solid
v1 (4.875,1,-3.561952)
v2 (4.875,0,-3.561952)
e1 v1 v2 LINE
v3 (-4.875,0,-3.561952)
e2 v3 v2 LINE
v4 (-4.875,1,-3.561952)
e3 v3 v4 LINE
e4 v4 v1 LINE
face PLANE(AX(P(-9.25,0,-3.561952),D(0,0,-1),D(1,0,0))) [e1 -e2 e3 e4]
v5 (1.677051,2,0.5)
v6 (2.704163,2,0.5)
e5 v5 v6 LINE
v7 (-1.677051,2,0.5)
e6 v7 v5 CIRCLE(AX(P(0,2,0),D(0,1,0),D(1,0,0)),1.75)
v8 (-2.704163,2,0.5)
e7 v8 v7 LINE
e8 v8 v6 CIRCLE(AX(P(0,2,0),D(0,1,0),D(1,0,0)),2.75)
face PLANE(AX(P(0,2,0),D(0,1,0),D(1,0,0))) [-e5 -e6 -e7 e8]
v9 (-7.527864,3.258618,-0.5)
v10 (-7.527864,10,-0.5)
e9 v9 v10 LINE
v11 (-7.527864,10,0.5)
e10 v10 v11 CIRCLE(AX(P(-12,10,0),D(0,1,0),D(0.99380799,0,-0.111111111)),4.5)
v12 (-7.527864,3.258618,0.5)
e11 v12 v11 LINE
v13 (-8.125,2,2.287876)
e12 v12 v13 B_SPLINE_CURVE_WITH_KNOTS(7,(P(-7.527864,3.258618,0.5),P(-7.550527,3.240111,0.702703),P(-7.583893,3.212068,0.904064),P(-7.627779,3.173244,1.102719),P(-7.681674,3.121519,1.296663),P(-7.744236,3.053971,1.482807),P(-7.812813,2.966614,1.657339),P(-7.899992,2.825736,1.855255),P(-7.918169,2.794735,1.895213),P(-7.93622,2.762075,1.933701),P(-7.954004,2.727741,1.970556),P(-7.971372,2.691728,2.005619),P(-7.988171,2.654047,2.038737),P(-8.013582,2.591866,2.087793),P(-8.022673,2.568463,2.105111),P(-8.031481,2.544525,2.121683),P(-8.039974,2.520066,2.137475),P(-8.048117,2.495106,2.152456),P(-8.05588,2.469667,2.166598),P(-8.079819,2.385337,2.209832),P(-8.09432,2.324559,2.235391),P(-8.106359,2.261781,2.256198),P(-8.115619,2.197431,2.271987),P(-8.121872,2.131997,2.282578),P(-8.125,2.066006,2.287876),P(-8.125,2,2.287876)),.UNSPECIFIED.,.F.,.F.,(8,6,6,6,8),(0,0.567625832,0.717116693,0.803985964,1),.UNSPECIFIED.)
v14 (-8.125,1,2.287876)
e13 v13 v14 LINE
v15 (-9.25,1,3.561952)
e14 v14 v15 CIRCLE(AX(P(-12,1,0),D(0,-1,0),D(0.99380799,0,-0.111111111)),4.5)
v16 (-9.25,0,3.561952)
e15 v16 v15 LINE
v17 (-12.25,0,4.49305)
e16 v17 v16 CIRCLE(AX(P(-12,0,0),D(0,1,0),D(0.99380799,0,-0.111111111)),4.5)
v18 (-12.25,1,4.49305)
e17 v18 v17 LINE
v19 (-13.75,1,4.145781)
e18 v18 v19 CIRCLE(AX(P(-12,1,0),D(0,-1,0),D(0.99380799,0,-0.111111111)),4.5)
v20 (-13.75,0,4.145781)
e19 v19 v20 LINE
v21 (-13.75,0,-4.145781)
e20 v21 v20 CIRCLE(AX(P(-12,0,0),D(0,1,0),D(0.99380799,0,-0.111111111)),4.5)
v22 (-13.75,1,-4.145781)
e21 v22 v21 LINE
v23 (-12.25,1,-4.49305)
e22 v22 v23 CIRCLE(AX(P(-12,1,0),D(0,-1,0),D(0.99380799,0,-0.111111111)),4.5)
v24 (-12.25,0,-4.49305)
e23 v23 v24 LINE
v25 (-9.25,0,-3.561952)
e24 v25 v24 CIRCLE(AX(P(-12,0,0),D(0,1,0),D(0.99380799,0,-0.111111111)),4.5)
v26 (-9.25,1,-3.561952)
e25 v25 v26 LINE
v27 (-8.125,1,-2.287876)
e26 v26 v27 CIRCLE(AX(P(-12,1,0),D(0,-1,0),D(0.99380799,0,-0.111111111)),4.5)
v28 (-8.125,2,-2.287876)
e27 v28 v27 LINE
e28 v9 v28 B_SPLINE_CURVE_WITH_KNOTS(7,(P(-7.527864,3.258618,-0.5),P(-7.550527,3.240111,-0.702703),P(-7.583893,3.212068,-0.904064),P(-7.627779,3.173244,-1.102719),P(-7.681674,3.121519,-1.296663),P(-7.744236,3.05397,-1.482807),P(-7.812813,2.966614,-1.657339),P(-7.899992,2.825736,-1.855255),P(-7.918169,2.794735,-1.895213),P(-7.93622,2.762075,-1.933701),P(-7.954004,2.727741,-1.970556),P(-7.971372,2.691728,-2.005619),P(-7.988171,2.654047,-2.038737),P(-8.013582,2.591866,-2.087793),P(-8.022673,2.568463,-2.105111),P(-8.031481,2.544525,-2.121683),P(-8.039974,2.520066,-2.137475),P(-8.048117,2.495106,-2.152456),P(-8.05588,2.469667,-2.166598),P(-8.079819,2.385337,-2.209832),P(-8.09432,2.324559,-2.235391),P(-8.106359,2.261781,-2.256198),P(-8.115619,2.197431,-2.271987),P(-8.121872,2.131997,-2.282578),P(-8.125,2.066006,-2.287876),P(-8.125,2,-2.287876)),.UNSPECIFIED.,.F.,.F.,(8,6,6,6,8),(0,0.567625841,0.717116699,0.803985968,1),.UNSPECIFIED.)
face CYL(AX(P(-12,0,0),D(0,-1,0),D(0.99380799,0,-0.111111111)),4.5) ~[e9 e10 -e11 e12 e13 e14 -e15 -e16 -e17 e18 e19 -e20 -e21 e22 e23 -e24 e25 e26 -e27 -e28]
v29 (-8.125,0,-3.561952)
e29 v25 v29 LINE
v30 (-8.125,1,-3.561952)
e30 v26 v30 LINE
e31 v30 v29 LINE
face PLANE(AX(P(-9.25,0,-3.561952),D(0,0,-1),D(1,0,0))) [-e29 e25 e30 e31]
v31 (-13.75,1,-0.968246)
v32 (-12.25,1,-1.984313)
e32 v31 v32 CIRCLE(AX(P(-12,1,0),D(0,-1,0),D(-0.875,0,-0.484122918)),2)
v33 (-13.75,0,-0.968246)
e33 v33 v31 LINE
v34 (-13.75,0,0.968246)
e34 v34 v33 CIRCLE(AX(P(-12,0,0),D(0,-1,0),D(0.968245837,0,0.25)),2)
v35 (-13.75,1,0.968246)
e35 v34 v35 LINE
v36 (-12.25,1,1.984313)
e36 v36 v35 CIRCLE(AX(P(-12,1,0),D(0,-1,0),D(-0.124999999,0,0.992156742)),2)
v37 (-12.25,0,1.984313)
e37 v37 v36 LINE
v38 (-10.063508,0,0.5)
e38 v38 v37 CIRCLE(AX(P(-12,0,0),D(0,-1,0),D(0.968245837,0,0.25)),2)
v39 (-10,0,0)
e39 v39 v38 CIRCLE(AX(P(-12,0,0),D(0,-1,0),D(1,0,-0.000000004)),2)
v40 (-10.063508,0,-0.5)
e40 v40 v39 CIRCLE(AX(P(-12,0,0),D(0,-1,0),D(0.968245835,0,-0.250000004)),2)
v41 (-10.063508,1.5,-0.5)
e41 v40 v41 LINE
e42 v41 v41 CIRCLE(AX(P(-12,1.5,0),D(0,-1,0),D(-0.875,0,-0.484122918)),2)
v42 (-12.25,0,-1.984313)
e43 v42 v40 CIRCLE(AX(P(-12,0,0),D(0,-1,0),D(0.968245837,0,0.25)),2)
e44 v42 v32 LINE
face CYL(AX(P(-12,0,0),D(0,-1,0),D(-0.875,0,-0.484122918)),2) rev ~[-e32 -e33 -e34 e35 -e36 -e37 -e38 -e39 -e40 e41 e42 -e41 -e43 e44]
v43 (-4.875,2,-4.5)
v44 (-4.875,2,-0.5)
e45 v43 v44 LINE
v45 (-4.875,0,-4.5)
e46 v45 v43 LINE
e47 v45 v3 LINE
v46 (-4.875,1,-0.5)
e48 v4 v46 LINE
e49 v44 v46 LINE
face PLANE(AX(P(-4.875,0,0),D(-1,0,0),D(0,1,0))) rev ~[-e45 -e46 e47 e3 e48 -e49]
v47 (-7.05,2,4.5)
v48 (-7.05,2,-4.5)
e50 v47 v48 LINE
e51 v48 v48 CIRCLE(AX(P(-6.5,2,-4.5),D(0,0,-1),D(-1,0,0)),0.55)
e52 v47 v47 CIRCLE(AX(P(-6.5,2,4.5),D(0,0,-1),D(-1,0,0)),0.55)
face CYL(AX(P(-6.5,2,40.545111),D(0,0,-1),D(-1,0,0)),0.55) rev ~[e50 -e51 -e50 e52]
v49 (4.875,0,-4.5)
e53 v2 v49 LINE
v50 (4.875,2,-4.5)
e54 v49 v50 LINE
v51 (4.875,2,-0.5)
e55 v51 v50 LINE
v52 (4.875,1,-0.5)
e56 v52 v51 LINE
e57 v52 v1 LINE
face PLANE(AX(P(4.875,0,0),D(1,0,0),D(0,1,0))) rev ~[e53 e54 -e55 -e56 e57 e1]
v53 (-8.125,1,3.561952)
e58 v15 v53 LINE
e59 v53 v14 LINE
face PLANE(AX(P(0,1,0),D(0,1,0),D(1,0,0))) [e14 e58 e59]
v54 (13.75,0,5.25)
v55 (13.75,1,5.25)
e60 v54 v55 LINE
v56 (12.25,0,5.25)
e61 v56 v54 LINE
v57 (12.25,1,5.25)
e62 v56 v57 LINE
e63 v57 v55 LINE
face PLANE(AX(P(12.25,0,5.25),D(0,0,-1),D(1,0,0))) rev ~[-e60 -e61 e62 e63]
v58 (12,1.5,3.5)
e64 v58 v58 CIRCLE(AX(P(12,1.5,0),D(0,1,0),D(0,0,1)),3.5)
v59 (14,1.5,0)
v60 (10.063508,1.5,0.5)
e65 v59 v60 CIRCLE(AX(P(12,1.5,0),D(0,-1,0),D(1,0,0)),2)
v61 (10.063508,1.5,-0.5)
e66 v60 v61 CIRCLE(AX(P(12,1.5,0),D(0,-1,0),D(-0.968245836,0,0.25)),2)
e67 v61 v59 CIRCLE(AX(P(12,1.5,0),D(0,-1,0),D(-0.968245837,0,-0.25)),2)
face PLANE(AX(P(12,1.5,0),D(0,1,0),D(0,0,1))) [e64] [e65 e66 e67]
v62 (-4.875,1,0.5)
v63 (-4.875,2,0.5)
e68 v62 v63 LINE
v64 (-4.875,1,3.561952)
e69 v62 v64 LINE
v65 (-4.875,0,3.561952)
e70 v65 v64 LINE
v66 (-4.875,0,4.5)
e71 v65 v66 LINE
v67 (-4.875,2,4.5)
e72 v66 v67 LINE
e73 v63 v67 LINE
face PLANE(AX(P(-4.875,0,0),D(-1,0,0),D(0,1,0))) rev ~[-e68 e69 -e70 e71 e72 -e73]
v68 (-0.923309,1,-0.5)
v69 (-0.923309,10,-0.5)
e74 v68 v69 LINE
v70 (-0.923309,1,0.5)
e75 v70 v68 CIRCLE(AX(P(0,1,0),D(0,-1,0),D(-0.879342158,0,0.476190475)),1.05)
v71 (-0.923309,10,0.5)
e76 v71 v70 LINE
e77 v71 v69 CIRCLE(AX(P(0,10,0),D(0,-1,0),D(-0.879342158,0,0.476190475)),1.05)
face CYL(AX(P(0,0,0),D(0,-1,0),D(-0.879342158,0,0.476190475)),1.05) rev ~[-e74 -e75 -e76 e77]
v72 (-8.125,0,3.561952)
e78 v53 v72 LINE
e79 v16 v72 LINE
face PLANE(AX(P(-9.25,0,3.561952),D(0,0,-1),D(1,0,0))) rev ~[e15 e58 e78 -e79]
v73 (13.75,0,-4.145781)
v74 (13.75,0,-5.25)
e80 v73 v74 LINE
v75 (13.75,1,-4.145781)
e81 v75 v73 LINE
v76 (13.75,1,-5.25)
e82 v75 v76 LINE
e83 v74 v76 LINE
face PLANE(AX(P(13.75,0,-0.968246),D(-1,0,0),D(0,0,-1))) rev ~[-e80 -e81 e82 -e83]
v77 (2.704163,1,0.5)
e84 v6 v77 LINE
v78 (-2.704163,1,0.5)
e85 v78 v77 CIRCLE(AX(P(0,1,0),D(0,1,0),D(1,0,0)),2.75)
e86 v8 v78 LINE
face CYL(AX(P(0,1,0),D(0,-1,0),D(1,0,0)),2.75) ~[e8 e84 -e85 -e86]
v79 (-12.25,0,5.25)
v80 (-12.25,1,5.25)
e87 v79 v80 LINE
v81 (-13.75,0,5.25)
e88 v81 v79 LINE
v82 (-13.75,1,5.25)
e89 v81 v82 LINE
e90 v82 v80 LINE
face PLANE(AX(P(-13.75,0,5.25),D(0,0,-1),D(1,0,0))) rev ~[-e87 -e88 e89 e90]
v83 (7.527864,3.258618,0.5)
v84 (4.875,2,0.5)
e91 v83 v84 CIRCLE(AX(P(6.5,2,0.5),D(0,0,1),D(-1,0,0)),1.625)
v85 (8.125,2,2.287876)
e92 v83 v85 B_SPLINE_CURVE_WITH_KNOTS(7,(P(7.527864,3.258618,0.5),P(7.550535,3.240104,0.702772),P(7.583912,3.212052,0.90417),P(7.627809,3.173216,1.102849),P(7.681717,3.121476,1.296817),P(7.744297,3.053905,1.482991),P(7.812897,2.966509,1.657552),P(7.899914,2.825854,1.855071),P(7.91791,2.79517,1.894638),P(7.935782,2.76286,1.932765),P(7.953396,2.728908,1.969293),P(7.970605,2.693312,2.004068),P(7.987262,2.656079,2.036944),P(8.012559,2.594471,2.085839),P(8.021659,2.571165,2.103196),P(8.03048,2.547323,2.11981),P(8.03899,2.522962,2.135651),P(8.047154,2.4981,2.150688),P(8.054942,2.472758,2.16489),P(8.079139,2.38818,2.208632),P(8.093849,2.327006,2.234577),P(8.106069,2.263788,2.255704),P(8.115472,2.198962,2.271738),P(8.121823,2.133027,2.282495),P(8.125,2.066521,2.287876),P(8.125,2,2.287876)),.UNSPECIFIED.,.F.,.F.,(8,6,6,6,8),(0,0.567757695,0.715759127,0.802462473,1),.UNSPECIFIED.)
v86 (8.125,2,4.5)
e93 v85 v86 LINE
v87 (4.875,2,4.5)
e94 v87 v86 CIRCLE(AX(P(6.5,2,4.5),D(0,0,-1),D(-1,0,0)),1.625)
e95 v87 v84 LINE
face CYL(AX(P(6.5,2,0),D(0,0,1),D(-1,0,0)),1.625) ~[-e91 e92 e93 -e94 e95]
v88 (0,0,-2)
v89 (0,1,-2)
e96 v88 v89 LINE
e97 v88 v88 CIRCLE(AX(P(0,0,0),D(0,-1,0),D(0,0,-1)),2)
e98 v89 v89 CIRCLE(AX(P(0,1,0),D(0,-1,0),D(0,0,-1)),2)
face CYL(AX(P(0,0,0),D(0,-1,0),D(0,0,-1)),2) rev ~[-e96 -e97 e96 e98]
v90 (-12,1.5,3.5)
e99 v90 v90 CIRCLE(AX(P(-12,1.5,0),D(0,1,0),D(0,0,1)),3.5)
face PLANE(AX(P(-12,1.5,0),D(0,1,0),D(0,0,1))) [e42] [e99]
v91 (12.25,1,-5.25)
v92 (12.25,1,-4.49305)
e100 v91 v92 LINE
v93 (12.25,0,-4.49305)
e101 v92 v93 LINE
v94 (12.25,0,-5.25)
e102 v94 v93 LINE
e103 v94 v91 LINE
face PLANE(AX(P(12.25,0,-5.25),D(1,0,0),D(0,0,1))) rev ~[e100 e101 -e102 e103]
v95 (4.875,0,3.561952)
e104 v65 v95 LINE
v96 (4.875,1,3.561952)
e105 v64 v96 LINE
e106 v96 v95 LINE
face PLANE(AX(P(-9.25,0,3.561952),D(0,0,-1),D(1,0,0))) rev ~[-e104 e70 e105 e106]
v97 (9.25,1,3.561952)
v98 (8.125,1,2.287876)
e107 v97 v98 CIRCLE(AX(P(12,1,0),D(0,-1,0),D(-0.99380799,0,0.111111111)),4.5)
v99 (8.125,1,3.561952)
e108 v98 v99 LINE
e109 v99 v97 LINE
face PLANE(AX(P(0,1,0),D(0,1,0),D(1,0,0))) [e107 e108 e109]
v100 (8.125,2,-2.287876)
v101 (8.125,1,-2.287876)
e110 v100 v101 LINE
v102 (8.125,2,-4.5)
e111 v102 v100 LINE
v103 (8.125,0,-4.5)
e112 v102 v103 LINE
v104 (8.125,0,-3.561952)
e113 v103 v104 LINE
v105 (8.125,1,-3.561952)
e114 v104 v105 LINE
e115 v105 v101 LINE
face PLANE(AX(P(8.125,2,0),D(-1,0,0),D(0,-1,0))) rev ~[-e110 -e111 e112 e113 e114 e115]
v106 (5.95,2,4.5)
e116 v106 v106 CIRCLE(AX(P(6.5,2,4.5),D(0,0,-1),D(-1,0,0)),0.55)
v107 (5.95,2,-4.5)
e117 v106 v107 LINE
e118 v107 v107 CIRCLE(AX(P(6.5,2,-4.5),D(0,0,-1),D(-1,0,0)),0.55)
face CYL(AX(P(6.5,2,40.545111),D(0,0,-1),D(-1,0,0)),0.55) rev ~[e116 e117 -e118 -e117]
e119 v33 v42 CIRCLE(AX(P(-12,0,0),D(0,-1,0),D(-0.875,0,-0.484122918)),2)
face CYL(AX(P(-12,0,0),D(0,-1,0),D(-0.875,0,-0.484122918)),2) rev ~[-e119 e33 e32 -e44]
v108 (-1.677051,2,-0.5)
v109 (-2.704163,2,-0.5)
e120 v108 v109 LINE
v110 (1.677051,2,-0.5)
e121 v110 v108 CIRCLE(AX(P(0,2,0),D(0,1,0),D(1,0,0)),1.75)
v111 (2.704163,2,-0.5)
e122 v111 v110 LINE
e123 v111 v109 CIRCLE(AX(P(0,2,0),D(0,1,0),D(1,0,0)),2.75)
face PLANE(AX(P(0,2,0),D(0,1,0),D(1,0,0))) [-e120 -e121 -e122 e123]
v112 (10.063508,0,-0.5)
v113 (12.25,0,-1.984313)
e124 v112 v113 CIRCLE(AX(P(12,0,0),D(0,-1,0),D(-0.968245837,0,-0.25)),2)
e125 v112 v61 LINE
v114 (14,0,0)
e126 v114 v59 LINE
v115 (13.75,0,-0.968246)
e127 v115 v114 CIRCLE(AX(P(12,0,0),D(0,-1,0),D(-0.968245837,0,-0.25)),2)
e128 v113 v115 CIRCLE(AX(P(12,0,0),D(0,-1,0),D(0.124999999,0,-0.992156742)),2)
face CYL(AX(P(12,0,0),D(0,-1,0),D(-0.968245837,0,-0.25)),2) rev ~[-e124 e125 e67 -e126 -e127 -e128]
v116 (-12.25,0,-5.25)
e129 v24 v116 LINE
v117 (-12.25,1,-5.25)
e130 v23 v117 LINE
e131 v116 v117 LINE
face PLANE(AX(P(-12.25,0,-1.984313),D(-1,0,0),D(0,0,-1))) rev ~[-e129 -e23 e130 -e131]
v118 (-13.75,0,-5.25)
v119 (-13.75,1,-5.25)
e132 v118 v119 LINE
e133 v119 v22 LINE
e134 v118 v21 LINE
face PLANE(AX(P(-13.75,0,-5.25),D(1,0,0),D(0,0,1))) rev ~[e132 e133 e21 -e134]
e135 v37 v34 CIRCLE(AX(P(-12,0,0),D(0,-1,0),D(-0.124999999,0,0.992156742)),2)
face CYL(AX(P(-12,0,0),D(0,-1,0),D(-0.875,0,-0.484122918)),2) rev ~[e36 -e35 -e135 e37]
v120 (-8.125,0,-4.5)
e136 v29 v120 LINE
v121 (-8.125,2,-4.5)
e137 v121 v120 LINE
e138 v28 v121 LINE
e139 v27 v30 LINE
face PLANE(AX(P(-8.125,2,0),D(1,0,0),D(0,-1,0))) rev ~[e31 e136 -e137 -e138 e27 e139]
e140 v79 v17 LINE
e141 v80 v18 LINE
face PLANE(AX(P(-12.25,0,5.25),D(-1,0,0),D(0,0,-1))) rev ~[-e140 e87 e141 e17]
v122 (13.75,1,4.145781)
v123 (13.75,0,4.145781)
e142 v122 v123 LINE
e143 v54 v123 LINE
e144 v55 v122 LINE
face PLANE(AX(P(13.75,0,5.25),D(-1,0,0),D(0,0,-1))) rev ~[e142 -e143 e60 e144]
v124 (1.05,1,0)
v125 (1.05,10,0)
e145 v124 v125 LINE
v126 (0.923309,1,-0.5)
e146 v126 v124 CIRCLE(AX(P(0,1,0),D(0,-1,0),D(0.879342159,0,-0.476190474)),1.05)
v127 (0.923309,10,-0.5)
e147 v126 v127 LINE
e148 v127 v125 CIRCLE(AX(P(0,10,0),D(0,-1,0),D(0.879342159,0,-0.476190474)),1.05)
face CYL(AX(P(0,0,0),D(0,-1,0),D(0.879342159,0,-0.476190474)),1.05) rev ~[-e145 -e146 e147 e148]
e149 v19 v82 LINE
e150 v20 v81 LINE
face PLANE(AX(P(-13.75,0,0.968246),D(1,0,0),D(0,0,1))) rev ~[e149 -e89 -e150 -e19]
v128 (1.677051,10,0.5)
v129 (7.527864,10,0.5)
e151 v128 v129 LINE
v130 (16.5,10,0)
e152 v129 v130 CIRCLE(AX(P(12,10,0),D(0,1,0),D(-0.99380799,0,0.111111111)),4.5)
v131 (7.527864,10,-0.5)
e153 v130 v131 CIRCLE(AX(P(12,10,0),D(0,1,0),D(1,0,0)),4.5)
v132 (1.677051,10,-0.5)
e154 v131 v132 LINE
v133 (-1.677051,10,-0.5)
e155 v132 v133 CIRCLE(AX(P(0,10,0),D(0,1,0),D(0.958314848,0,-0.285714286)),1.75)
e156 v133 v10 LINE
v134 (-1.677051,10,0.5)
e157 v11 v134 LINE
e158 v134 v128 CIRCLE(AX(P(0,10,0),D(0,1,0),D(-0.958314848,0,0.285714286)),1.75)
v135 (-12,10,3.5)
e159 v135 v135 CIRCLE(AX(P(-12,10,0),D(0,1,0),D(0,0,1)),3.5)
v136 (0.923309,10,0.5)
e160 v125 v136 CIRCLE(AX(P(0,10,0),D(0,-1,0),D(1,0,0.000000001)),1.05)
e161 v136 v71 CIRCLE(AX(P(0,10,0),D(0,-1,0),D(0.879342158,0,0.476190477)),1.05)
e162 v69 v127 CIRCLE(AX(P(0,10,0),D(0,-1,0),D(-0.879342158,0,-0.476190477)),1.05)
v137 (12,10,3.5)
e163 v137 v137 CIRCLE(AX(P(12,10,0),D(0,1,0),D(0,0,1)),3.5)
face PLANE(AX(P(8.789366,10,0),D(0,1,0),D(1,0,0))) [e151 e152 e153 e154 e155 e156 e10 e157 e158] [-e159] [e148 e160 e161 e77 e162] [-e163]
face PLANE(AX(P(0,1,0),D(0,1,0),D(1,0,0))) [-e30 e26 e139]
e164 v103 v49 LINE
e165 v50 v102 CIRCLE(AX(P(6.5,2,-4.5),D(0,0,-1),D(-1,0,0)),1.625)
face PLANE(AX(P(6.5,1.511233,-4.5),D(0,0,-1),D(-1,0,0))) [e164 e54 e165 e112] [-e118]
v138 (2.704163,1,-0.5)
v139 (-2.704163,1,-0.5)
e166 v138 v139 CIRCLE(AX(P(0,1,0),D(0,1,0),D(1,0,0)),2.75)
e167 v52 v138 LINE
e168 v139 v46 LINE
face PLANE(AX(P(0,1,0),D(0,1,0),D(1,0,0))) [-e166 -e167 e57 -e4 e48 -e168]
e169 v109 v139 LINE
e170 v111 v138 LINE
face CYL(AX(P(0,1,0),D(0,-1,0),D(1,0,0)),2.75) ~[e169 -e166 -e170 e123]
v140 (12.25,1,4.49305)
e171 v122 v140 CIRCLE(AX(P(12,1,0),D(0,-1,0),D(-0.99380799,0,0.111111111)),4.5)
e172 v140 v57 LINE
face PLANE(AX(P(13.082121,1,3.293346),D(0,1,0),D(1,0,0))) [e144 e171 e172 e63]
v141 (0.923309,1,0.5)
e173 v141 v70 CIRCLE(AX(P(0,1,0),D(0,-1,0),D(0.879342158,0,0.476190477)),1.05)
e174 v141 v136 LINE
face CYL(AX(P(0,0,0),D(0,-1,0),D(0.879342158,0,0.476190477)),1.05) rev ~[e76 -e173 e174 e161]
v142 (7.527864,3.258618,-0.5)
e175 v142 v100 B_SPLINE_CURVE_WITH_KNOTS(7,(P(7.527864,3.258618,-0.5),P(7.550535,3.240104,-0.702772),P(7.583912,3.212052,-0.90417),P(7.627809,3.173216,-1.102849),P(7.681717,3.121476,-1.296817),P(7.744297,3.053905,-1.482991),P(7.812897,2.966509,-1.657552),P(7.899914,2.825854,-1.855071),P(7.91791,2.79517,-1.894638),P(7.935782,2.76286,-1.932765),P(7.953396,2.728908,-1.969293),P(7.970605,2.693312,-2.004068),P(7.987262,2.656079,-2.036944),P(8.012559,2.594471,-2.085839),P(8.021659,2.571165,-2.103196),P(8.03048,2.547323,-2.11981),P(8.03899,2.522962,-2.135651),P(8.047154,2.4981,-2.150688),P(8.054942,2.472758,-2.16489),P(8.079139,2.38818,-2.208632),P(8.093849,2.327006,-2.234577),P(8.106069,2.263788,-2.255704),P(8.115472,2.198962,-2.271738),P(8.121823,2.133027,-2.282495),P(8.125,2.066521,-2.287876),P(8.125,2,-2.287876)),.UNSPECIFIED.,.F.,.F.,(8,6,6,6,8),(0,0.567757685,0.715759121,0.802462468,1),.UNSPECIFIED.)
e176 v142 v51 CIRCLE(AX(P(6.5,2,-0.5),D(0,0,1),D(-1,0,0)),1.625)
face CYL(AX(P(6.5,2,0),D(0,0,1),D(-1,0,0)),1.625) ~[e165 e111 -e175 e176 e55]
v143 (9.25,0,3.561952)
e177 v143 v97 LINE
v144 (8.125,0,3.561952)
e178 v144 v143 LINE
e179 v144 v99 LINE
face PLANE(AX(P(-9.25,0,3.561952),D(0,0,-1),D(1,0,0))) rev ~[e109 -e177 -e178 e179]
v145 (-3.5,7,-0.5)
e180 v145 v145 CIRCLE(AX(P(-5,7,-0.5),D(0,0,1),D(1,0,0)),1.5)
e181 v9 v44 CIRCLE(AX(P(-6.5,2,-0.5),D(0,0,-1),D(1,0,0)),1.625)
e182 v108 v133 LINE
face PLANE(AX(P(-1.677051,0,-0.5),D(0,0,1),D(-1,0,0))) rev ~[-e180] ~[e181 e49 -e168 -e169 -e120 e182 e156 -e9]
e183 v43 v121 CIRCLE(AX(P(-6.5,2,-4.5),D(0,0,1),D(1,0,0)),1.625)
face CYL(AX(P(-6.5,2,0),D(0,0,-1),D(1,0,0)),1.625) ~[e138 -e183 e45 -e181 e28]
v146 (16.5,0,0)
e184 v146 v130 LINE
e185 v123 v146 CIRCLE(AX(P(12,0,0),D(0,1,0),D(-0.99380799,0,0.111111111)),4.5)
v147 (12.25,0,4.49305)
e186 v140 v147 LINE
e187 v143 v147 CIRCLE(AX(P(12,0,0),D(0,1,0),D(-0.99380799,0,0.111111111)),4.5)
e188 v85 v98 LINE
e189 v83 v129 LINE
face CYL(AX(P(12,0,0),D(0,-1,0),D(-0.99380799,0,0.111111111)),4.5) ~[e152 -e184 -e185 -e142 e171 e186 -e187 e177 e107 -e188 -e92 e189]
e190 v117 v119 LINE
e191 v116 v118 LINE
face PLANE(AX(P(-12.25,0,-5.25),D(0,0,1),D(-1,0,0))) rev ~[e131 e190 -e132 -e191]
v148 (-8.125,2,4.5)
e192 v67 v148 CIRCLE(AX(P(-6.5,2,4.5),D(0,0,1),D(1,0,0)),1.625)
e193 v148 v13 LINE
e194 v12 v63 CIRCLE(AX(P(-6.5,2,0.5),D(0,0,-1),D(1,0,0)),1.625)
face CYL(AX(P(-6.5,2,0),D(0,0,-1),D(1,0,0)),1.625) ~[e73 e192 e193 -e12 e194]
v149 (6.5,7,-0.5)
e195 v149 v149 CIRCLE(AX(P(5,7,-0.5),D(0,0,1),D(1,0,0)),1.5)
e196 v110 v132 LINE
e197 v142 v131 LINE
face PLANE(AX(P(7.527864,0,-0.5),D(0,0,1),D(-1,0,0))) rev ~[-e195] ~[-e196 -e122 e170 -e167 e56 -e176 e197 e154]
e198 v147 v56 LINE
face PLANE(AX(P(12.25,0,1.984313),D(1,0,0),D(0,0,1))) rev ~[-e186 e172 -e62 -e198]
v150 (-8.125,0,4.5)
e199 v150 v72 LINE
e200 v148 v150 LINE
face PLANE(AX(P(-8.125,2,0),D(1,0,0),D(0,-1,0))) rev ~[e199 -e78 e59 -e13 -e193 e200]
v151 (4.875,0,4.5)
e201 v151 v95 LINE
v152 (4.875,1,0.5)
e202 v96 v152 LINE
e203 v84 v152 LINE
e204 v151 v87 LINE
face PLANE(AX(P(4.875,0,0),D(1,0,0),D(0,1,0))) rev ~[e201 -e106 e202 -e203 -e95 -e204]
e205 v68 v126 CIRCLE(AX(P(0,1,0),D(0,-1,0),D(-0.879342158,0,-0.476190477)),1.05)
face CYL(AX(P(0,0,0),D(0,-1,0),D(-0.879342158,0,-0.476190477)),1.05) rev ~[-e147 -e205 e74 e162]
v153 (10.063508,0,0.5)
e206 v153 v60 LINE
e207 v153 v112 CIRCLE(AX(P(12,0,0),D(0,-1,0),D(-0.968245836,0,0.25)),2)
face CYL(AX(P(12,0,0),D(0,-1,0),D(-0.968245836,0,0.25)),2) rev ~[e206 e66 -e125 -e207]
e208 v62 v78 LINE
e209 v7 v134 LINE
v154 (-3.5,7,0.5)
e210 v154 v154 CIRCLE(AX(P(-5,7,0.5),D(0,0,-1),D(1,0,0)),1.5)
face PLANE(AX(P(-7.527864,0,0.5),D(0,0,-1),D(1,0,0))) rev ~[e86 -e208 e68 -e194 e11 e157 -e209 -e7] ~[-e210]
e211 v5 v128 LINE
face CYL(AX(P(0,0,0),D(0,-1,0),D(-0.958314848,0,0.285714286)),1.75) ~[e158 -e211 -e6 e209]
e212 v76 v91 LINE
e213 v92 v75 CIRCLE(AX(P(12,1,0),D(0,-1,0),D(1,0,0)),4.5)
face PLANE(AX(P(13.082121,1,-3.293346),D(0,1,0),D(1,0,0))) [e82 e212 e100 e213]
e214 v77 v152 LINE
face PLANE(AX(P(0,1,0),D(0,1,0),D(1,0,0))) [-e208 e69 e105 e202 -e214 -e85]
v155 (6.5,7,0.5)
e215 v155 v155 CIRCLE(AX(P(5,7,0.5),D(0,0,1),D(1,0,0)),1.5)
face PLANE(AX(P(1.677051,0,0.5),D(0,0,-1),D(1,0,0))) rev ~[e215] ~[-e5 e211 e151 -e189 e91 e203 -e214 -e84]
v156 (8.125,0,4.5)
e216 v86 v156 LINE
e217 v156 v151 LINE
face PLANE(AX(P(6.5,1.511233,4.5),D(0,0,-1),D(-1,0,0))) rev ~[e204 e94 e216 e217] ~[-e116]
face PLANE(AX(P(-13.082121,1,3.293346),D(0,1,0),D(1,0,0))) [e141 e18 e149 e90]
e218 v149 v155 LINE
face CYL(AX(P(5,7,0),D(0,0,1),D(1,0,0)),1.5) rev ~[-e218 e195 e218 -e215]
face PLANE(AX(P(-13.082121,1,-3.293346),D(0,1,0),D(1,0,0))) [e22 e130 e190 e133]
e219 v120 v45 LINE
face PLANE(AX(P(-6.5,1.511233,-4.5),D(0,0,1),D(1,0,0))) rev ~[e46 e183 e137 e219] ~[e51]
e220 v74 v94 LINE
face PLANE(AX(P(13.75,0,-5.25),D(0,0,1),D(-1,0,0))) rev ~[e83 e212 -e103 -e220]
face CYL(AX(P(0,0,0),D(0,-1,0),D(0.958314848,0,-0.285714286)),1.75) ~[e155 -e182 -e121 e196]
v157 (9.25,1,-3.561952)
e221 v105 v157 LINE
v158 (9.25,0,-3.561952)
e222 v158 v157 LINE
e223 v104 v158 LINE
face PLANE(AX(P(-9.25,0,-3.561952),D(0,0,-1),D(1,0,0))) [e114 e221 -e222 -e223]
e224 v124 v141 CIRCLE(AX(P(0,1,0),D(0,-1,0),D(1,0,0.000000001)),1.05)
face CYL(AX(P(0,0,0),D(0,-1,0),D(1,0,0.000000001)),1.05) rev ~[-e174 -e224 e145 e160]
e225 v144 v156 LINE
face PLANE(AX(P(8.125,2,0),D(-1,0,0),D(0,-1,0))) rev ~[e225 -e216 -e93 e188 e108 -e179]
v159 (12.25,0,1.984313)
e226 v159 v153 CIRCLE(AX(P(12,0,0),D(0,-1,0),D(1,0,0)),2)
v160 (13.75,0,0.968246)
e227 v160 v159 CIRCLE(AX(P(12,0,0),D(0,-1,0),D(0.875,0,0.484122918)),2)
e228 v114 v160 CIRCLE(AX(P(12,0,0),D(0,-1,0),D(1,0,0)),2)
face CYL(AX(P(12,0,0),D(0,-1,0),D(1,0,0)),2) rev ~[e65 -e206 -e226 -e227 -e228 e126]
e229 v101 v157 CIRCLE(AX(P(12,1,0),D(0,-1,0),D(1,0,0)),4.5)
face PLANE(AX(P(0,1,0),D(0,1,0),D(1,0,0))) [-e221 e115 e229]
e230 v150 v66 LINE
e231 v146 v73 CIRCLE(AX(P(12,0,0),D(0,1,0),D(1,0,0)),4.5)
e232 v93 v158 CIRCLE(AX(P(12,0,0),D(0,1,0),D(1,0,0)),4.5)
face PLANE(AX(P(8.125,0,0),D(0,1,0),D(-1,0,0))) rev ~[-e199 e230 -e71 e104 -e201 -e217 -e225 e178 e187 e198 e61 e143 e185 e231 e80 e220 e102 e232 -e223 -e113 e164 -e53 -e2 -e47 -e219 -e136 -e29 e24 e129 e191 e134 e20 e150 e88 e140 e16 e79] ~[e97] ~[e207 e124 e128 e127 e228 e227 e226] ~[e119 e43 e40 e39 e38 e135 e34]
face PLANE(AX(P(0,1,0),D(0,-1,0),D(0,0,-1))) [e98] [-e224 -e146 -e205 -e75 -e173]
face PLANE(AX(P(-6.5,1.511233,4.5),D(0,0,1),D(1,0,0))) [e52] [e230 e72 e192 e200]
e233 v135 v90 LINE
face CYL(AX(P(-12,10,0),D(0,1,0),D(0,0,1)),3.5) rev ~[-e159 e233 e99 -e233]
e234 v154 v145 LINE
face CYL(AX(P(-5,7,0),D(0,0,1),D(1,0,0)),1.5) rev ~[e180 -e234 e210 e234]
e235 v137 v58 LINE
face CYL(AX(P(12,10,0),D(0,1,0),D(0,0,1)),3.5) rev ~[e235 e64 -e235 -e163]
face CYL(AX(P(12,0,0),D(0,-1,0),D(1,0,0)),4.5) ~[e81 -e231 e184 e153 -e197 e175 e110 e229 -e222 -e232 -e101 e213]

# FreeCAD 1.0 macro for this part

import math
import FreeCAD as App
import Part
import Sketcher
from FreeCAD import Vector
Q = App.Units.Quantity

doc = App.newDocument("Part")
body = doc.addObject("PartDesign::Body", "Body")

# Sketch on XZ plane
sketch1 = body.newObject("Sketcher::SketchObject", "Sketch")
sketch1.AttachmentSupport = (doc.getObject("XZ_Plane"), [""])
sketch1.MapMode = "FlatFace"
sketch1.addGeometry(Part.ArcOfCircle(Part.Circle(Vector(12, 0, 0), Vector(0, 0, 1), 4.5), math.radians(0), math.radians(174)), False)
sketch1.addGeometry(Part.ArcOfCircle(Part.Circle(Vector(12, 0, 0), Vector(0, 0, 1), 4.5), math.radians(-174), math.radians(0)), False)
sketch1.addGeometry(Part.LineSegment(Vector(7.5, -0.5, 0), Vector(1.7, -0.5, 0)), False)
sketch1.addGeometry(Part.ArcOfCircle(Part.Circle(Vector(0, 0, 0), Vector(0, 0, 1), 1.8), math.radians(-163), math.radians(-17)), False)
sketch1.addGeometry(Part.LineSegment(Vector(-1.7, -0.5, 0), Vector(-7.5, -0.5, 0)), False)
sketch1.addGeometry(Part.ArcOfCircle(Part.Circle(Vector(-12, 0, 0), Vector(0, 0, 1), 4.5), math.radians(6), math.radians(354)), False)
sketch1.addGeometry(Part.LineSegment(Vector(-7.5, 0.5, 0), Vector(-1.7, 0.5, 0)), False)
sketch1.addGeometry(Part.ArcOfCircle(Part.Circle(Vector(0, 0, 0), Vector(0, 0, 1), 1.8), math.radians(17), math.radians(163)), False)
sketch1.addGeometry(Part.LineSegment(Vector(1.7, 0.5, 0), Vector(7.5, 0.5, 0)), False)
sketch1.addGeometry(Part.ArcOfCircle(Part.Circle(Vector(0, 0, 0), Vector(0, 0, 1), 1.1), math.radians(152), math.radians(208)), False)
sketch1.addGeometry(Part.ArcOfCircle(Part.Circle(Vector(0, 0, 0), Vector(0, 0, 1), 1.1), math.radians(-152), math.radians(-28)), False)
sketch1.addGeometry(Part.ArcOfCircle(Part.Circle(Vector(0, 0, 0), Vector(0, 0, 1), 1.1), math.radians(-28), math.radians(0)), False)
sketch1.addGeometry(Part.ArcOfCircle(Part.Circle(Vector(0, 0, 0), Vector(0, 0, 1), 1.1), math.radians(0), math.radians(28)), False)
sketch1.addGeometry(Part.ArcOfCircle(Part.Circle(Vector(0, 0, 0), Vector(0, 0, 1), 1.1), math.radians(28), math.radians(152)), False)
sketch1.addGeometry(Part.ArcOfCircle(Part.Circle(Vector(12, 0, 0), Vector(0, 0, 1), 2), math.radians(166), math.radians(194)), False)
sketch1.addGeometry(Part.ArcOfCircle(Part.Circle(Vector(12, 0, 0), Vector(0, 0, 1), 2), math.radians(-166), math.radians(0)), False)
sketch1.addGeometry(Part.ArcOfCircle(Part.Circle(Vector(12, 0, 0), Vector(0, 0, 1), 2), math.radians(0), math.radians(166)), False)
sketch1.addGeometry(Part.ArcOfCircle(Part.Circle(Vector(-12, 0, 0), Vector(0, 0, 1), 2), math.radians(-14.48), math.radians(0)), False)
sketch1.addGeometry(Part.ArcOfCircle(Part.Circle(Vector(-12, 0, 0), Vector(0, 0, 1), 2), math.radians(0), math.radians(14.48)), False)
sketch1.addGeometry(Part.ArcOfCircle(Part.Circle(Vector(-12, 0, 0), Vector(0, 0, 1), 2), math.radians(14), math.radians(346)), False)
sketch1.addConstraint(Sketcher.Constraint("Tangent", 0, 1, 1, 2))
sketch1.addConstraint(Sketcher.Constraint("Coincident", 1, 1, 2, 1))
sketch1.addConstraint(Sketcher.Constraint("Coincident", 2, 2, 3, 2))
sketch1.addConstraint(Sketcher.Constraint("Coincident", 3, 1, 4, 1))
sketch1.addConstraint(Sketcher.Constraint("Coincident", 4, 2, 5, 2))
sketch1.addConstraint(Sketcher.Constraint("Coincident", 5, 1, 6, 1))
sketch1.addConstraint(Sketcher.Constraint("Coincident", 6, 2, 7, 2))
sketch1.addConstraint(Sketcher.Constraint("Coincident", 7, 1, 8, 1))
sketch1.addConstraint(Sketcher.Constraint("Coincident", 8, 2, 0, 2))
sketch1.addConstraint(Sketcher.Constraint("Tangent", 9, 2, 10, 1))
sketch1.addConstraint(Sketcher.Constraint("Tangent", 10, 2, 11, 1))
sketch1.addConstraint(Sketcher.Constraint("Tangent", 11, 2, 12, 1))
sketch1.addConstraint(Sketcher.Constraint("Tangent", 12, 2, 13, 1))
sketch1.addConstraint(Sketcher.Constraint("Tangent", 13, 2, 9, 1))
sketch1.addConstraint(Sketcher.Constraint("Tangent", 14, 2, 15, 1))
sketch1.addConstraint(Sketcher.Constraint("Tangent", 15, 2, 16, 1))
sketch1.addConstraint(Sketcher.Constraint("Tangent", 16, 2, 14, 1))
sketch1.addConstraint(Sketcher.Constraint("Tangent", 17, 2, 18, 1))
sketch1.addConstraint(Sketcher.Constraint("Tangent", 18, 2, 19, 1))
sketch1.addConstraint(Sketcher.Constraint("Tangent", 19, 2, 17, 1))
sketch1.addConstraint(Sketcher.Constraint("Horizontal", 2))
sketch1.addConstraint(Sketcher.Constraint("Horizontal", 4))
sketch1.addConstraint(Sketcher.Constraint("Horizontal", 6))
sketch1.addConstraint(Sketcher.Constraint("Horizontal", 8))
sketch1.addConstraint(Sketcher.Constraint("Coincident", 3, 3, -1, 1))
sketch1.addConstraint(Sketcher.Constraint("Coincident", 7, 3, -1, 1))
sketch1.addConstraint(Sketcher.Constraint("Coincident", 9, 3, -1, 1))
sketch1.addConstraint(Sketcher.Constraint("Coincident", 11, 3, -1, 1))
sketch1.addConstraint(Sketcher.Constraint("Coincident", 14, 3, 0, 3))
sketch1.addConstraint(Sketcher.Constraint("Coincident", 17, 3, 5, 3))
sketch1.addConstraint(Sketcher.Constraint("Equal", 0, 1))
sketch1.addConstraint(Sketcher.Constraint("Equal", 1, 5))
sketch1.addConstraint(Sketcher.Constraint("Equal", 3, 7))
sketch1.addConstraint(Sketcher.Constraint("Equal", 16, 17))
sketch1.addConstraint(Sketcher.Constraint("Symmetric", 0, 3, 5, 3, -1, 1))
sketch1.addConstraint(Sketcher.Constraint("Symmetric", 1, 1, 4, 2, -2))
sketch1.addConstraint(Sketcher.Constraint("PointOnObject", 0, 1, -1))
sketch1.addConstraint(Sketcher.Constraint("PointOnObject", 11, 2, -1))
sketch1.addConstraint(Sketcher.Constraint("PointOnObject", 15, 2, -1))
sketch1.addConstraint(Sketcher.Constraint("PointOnObject", 17, 2, -1))
sketch1.addConstraint(Sketcher.Constraint("Horizontal", 6, 2, 7, 1))
sketch1.addConstraint(Sketcher.Constraint("Horizontal", 4, 2, 9, 2))
sketch1.addConstraint(Sketcher.Constraint("Horizontal", 9, 2, 10, 2))
sketch1.addConstraint(Sketcher.Constraint("Horizontal", 8, 2, 12, 2))
sketch1.addConstraint(Sketcher.Constraint("Horizontal", 12, 2, 13, 2))
sketch1.addConstraint(Sketcher.Constraint("Horizontal", 10, 2, 14, 2))
sketch1.addConstraint(Sketcher.Constraint("Horizontal", 13, 2, 16, 2))
sketch1.addConstraint(Sketcher.Constraint("Horizontal", 16, 2, 18, 2))
sketch1.addConstraint(Sketcher.Constraint("Horizontal", 14, 2, 19, 2))
sketch1.addConstraint(Sketcher.Constraint("Vertical", 4, 2, 5, 1))
sketch1.addConstraint(Sketcher.Constraint("Radius", 14, Q("2 mm")))
sketch1.addConstraint(Sketcher.Constraint("Radius", 0, Q("4.5 mm")))
sketch1.addConstraint(Sketcher.Constraint("Radius", 3, Q("1.75 mm")))
sketch1.addConstraint(Sketcher.Constraint("Radius", 9, Q("1.05 mm")))
sketch1.addConstraint(Sketcher.Constraint("DistanceX", -1, 1, 0, 3, Q("12 mm")))
sketch1.addConstraint(Sketcher.Constraint("DistanceY", 4, 2, 5, 1, Q("1 mm")))
pad1 = body.newObject("PartDesign::Pad", "Pad")
pad1.Profile = sketch1
pad1.Length = 10
pad1.Reversed = True

# Sketch on XZ plane
sketch2 = body.newObject("Sketcher::SketchObject", "Sketch001")
sketch2.AttachmentSupport = (doc.getObject("XZ_Plane"), [""])
sketch2.MapMode = "FlatFace"
sketch2.addGeometry(Part.LineSegment(Vector(-12.2, -5.2, 0), Vector(-13.8, -5.2, 0)), False)
sketch2.addGeometry(Part.LineSegment(Vector(-13.8, -5.2, 0), Vector(-13.8, -1, 0)), False)
sketch2.addGeometry(Part.ArcOfCircle(Part.Circle(Vector(-12, 0, 0), Vector(0, 0, 1), 2), math.radians(-151), math.radians(-97)), False)
sketch2.addGeometry(Part.LineSegment(Vector(-12.2, -2, 0), Vector(-12.2, -5.2, 0)), False)
sketch2.addGeometry(Part.ArcOfCircle(Part.Circle(Vector(-12, 0, 0), Vector(0, 0, 1), 2), math.radians(97), math.radians(151)), False)
sketch2.addGeometry(Part.LineSegment(Vector(-13.8, 1, 0), Vector(-13.8, 5.2, 0)), False)
sketch2.addGeometry(Part.LineSegment(Vector(-13.8, 5.2, 0), Vector(-12.2, 5.2, 0)), False)
sketch2.addGeometry(Part.LineSegment(Vector(-12.2, 5.2, 0), Vector(-12.2, 2, 0)), False)
sketch2.addGeometry(Part.LineSegment(Vector(13.8, -5.2, 0), Vector(12.2, -5.2, 0)), False)
sketch2.addGeometry(Part.LineSegment(Vector(12.2, -5.2, 0), Vector(12.2, -2, 0)), False)
sketch2.addGeometry(Part.ArcOfCircle(Part.Circle(Vector(12, 0, 0), Vector(0, 0, 1), 2), math.radians(-83), math.radians(-29)), False)
sketch2.addGeometry(Part.LineSegment(Vector(13.8, -1, 0), Vector(13.8, -5.2, 0)), False)
sketch2.addGeometry(Part.ArcOfCircle(Part.Circle(Vector(12, 0, 0), Vector(0, 0, 1), 2), math.radians(29), math.radians(83)), False)
sketch2.addGeometry(Part.LineSegment(Vector(12.2, 2, 0), Vector(12.2, 5.2, 0)), False)
sketch2.addGeometry(Part.LineSegment(Vector(12.2, 5.2, 0), Vector(13.8, 5.2, 0)), False)
sketch2.addGeometry(Part.LineSegment(Vector(13.8, 5.2, 0), Vector(13.8, 1, 0)), False)
sketch2.addGeometry(Part.LineSegment(Vector(-9.2, -3.6, 0), Vector(-9.2, 3.6, 0)), False)
sketch2.addGeometry(Part.LineSegment(Vector(-9.2, 3.6, 0), Vector(9.2, 3.6, 0)), False)
sketch2.addGeometry(Part.LineSegment(Vector(9.2, 3.6, 0), Vector(9.2, -3.6, 0)), False)
sketch2.addGeometry(Part.LineSegment(Vector(9.2, -3.6, 0), Vector(-9.2, -3.6, 0)), False)
sketch2.addGeometry(Part.Circle(Vector(0, 0, 0), Vector(0, 0, 1), 1.1), False)
sketch2.addConstraint(Sketcher.Constraint("Coincident", 0, 2, 1, 1))
sketch2.addConstraint(Sketcher.Constraint("Coincident", 1, 2, 2, 1))
sketch2.addConstraint(Sketcher.Constraint("Coincident", 2, 2, 3, 1))
sketch2.addConstraint(Sketcher.Constraint("Coincident", 3, 2, 0, 1))
sketch2.addConstraint(Sketcher.Constraint("Coincident", 4, 2, 5, 1))
sketch2.addConstraint(Sketcher.Constraint("Coincident", 5, 2, 6, 1))
sketch2.addConstraint(Sketcher.Constraint("Coincident", 6, 2, 7, 1))
sketch2.addConstraint(Sketcher.Constraint("Coincident", 7, 2, 4, 1))
sketch2.addConstraint(Sketcher.Constraint("Coincident", 8, 2, 9, 1))
sketch2.addConstraint(Sketcher.Constraint("Coincident", 9, 2, 10, 1))
sketch2.addConstraint(Sketcher.Constraint("Coincident", 10, 2, 11, 1))
sketch2.addConstraint(Sketcher.Constraint("Coincident", 11, 2, 8, 1))
sketch2.addConstraint(Sketcher.Constraint("Coincident", 12, 2, 13, 1))
sketch2.addConstraint(Sketcher.Constraint("Coincident", 13, 2, 14, 1))
sketch2.addConstraint(Sketcher.Constraint("Coincident", 14, 2, 15, 1))
sketch2.addConstraint(Sketcher.Constraint("Coincident", 15, 2, 12, 1))
sketch2.addConstraint(Sketcher.Constraint("Coincident", 16, 2, 17, 1))
sketch2.addConstraint(Sketcher.Constraint("Coincident", 17, 2, 18, 1))
sketch2.addConstraint(Sketcher.Constraint("Coincident", 18, 2, 19, 1))
sketch2.addConstraint(Sketcher.Constraint("Coincident", 19, 2, 16, 1))
sketch2.addConstraint(Sketcher.Constraint("Horizontal", 0))
sketch2.addConstraint(Sketcher.Constraint("Vertical", 1))
sketch2.addConstraint(Sketcher.Constraint("Vertical", 3))
sketch2.addConstraint(Sketcher.Constraint("Vertical", 5))
sketch2.addConstraint(Sketcher.Constraint("Horizontal", 6))
sketch2.addConstraint(Sketcher.Constraint("Vertical", 7))
sketch2.addConstraint(Sketcher.Constraint("Horizontal", 8))
sketch2.addConstraint(Sketcher.Constraint("Vertical", 9))
sketch2.addConstraint(Sketcher.Constraint("Vertical", 11))
sketch2.addConstraint(Sketcher.Constraint("Vertical", 13))
sketch2.addConstraint(Sketcher.Constraint("Horizontal", 14))
sketch2.addConstraint(Sketcher.Constraint("Vertical", 15))
sketch2.addConstraint(Sketcher.Constraint("Vertical", 16))
sketch2.addConstraint(Sketcher.Constraint("Horizontal", 17))
sketch2.addConstraint(Sketcher.Constraint("Vertical", 18))
sketch2.addConstraint(Sketcher.Constraint("Horizontal", 19))
sketch2.addConstraint(Sketcher.Constraint("Coincident", 20, 3, -1, 1))
sketch2.addConstraint(Sketcher.Constraint("Coincident", 4, 3, 2, 3))
sketch2.addConstraint(Sketcher.Constraint("Coincident", 12, 3, 10, 3))
sketch2.addConstraint(Sketcher.Constraint("Equal", 2, 4))
sketch2.addConstraint(Sketcher.Constraint("Equal", 4, 10))
sketch2.addConstraint(Sketcher.Constraint("Equal", 10, 12))
sketch2.addConstraint(Sketcher.Constraint("Symmetric", 2, 3, 10, 3, -1, 1))
sketch2.addConstraint(Sketcher.Constraint("Symmetric", 6, 2, 8, 2, -1, 1))
sketch2.addConstraint(Sketcher.Constraint("Symmetric", 3, 2, 13, 2, -1, 1))
sketch2.addConstraint(Sketcher.Constraint("Symmetric", 16, 2, 18, 2, -1, 1))
sketch2.addConstraint(Sketcher.Constraint("Symmetric", 3, 2, 8, 2, -2))
sketch2.addConstraint(Sketcher.Constraint("Symmetric", 1, 2, 10, 2, -2))
sketch2.addConstraint(Sketcher.Constraint("Horizontal", 4, 2, 15, 2))
sketch2.addConstraint(Sketcher.Constraint("Vertical", 1, 2, 4, 2))
sketch2.addConstraint(Sketcher.Constraint("Radius", 2, Q("2 mm")))
sketch2.addConstraint(Sketcher.Constraint("Diameter", 20, Q("2.1 mm")))
sketch2.addConstraint(Sketcher.Constraint("DistanceX", 0, 2, 0, 1, Q("1.5 mm")))
sketch2.addConstraint(Sketcher.Constraint("DistanceX", 17, 1, 17, 2, Q("18.5 mm")))
sketch2.addConstraint(Sketcher.Constraint("DistanceX", 2, 3, -1, 1, Q("12 mm")))
sketch2.addConstraint(Sketcher.Constraint("DistanceX", 7, 2, 16, 2, Q("3 mm")))
sketch2.addConstraint(Sketcher.Constraint("DistanceY", 0, 2, -1, 1, Q("5.25 mm")))
sketch2.addConstraint(Sketcher.Constraint("DistanceY", 16, 1, 16, 2, Q("7.123903 mm")))
pad2 = body.newObject("PartDesign::Pad", "Pad001")
pad2.Profile = sketch2
pad2.Length = 1
pad2.Reversed = True

# Sketch on XZ plane
sketch3 = body.newObject("Sketcher::SketchObject", "Sketch002")
sketch3.AttachmentSupport = (doc.getObject("XZ_Plane"), [""])
sketch3.MapMode = "FlatFace"
sketch3.AttachmentOffset = App.Placement(Vector(0, 0, -10), App.Rotation())
sketch3.addGeometry(Part.Circle(Vector(-12, 0, 0), Vector(0, 0, 1), 3.5), False)
sketch3.addGeometry(Part.Circle(Vector(12, 0, 0), Vector(0, 0, 1), 3.5), False)
sketch3.addConstraint(Sketcher.Constraint("Equal", 0, 1))
sketch3.addConstraint(Sketcher.Constraint("Symmetric", 0, 3, 1, 3, -1, 1))
sketch3.addConstraint(Sketcher.Constraint("PointOnObject", 0, 3, -1))
sketch3.addConstraint(Sketcher.Constraint("Diameter", 0, Q("7 mm")))
sketch3.addConstraint(Sketcher.Constraint("DistanceX", 0, 3, -1, 1, Q("12 mm")))
pocket1 = body.newObject("PartDesign::Pocket", "Pocket")
pocket1.Profile = sketch3
pocket1.Length = 8.5
pocket1.Reversed = True

# Sketch on XY plane
sketch4 = body.newObject("Sketcher::SketchObject", "Sketch003")
sketch4.AttachmentSupport = (doc.getObject("XY_Plane"), [""])
sketch4.MapMode = "FlatFace"
sketch4.addGeometry(Part.LineSegment(Vector(-8.1, 0, 0), Vector(-4.9, 0, 0)), False)
sketch4.addGeometry(Part.LineSegment(Vector(-4.9, 0, 0), Vector(-4.9, 2, 0)), False)
sketch4.addGeometry(Part.ArcOfCircle(Part.Circle(Vector(-6.5, 2, 0), Vector(0, 0, 1), 1.6), math.radians(0), math.radians(180)), False)
sketch4.addGeometry(Part.LineSegment(Vector(-8.1, 2, 0), Vector(-8.1, 0, 0)), False)
sketch4.addGeometry(Part.LineSegment(Vector(4.9, 0, 0), Vector(8.1, 0, 0)), False)
sketch4.addGeometry(Part.LineSegment(Vector(8.1, 0, 0), Vector(8.1, 2, 0)), False)
sketch4.addGeometry(Part.ArcOfCircle(Part.Circle(Vector(6.5, 2, 0), Vector(0, 0, 1), 1.6), math.radians(0), math.radians(180)), False)
sketch4.addGeometry(Part.LineSegment(Vector(4.9, 2, 0), Vector(4.9, 0, 0)), False)
sketch4.addConstraint(Sketcher.Constraint("Coincident", 0, 2, 1, 1))
sketch4.addConstraint(Sketcher.Constraint("Tangent", 1, 2, 2, 1))
sketch4.addConstraint(Sketcher.Constraint("Tangent", 2, 2, 3, 1))
sketch4.addConstraint(Sketcher.Constraint("Coincident", 3, 2, 0, 1))
sketch4.addConstraint(Sketcher.Constraint("Coincident", 4, 2, 5, 1))
sketch4.addConstraint(Sketcher.Constraint("Tangent", 5, 2, 6, 1))
sketch4.addConstraint(Sketcher.Constraint("Tangent", 6, 2, 7, 1))
sketch4.addConstraint(Sketcher.Constraint("Coincident", 7, 2, 4, 1))
sketch4.addConstraint(Sketcher.Constraint("Horizontal", 0))
sketch4.addConstraint(Sketcher.Constraint("Vertical", 1))
sketch4.addConstraint(Sketcher.Constraint("Vertical", 3))
sketch4.addConstraint(Sketcher.Constraint("Horizontal", 4))
sketch4.addConstraint(Sketcher.Constraint("Vertical", 5))
sketch4.addConstraint(Sketcher.Constraint("Vertical", 7))
sketch4.addConstraint(Sketcher.Constraint("Equal", 2, 6))
sketch4.addConstraint(Sketcher.Constraint("Symmetric", 3, 2, 4, 2, -1, 1))
sketch4.addConstraint(Sketcher.Constraint("PointOnObject", 0, 2, -1))
sketch4.addConstraint(Sketcher.Constraint("Horizontal", 2, 3, 6, 3))
sketch4.addConstraint(Sketcher.Constraint("DistanceY", 1, 1, 1, 2, Q("2 mm")))
sketch4.addConstraint(Sketcher.Constraint("Radius", 2, Q("1.625 mm")))
sketch4.addConstraint(Sketcher.Constraint("DistanceX", 2, 3, 6, 3, Q("13 mm")))
pad3 = body.newObject("PartDesign::Pad", "Pad002")
pad3.Profile = sketch4
pad3.Length = 9
pad3.Midplane = True

# Sketch on XY plane
sketch5 = body.newObject("Sketcher::SketchObject", "Sketch004")
sketch5.AttachmentSupport = (doc.getObject("XY_Plane"), [""])
sketch5.MapMode = "FlatFace"
sketch5.addGeometry(Part.Circle(Vector(-5, 7, 0), Vector(0, 0, 1), 1.5), False)
sketch5.addGeometry(Part.Circle(Vector(5, 7, 0), Vector(0, 0, 1), 1.5), False)
sketch5.addConstraint(Sketcher.Constraint("Equal", 0, 1))
sketch5.addConstraint(Sketcher.Constraint("Symmetric", 0, 3, 1, 3, -2))
sketch5.addConstraint(Sketcher.Constraint("Diameter", 0, Q("3 mm")))
sketch5.addConstraint(Sketcher.Constraint("DistanceX", 0, 3, -1, 1, Q("5 mm")))
sketch5.addConstraint(Sketcher.Constraint("DistanceY", -1, 1, 0, 3, Q("7 mm")))
pocket2 = body.newObject("PartDesign::Pocket", "Pocket001")
pocket2.Profile = sketch5
pocket2.Length = 9
pocket2.Midplane = True

# Sketch on XY plane
sketch6 = body.newObject("Sketcher::SketchObject", "Sketch005")
sketch6.AttachmentSupport = (doc.getObject("XY_Plane"), [""])
sketch6.MapMode = "FlatFace"
sketch6.AttachmentOffset = App.Placement(Vector(0, 0, 4.5), App.Rotation())
sketch6.addGeometry(Part.Circle(Vector(-6.5, 2, 0), Vector(0, 0, 1), 0.6), False)
sketch6.addGeometry(Part.Circle(Vector(6.5, 2, 0), Vector(0, 0, 1), 0.6), False)
sketch6.addConstraint(Sketcher.Constraint("Equal", 0, 1))
sketch6.addConstraint(Sketcher.Constraint("Symmetric", 0, 3, 1, 3, -2))
sketch6.addConstraint(Sketcher.Constraint("Diameter", 0, Q("1.1 mm")))
sketch6.addConstraint(Sketcher.Constraint("DistanceY", -1, 1, 0, 3, Q("2 mm")))
sketch6.addConstraint(Sketcher.Constraint("DistanceX", 0, 3, 1, 3, Q("13 mm")))
doc.recompute()
hole = body.newObject("PartDesign::Hole", "Hole")
hole.Profile = sketch6
hole.ThreadType = "None"
hole.Diameter = 1.1
hole.DepthType = "ThroughAll"

# Sketch on XZ plane
sketch7 = body.newObject("Sketcher::SketchObject", "Sketch006")
sketch7.AttachmentSupport = (doc.getObject("XZ_Plane"), [""])
sketch7.MapMode = "FlatFace"
sketch7.AttachmentOffset = App.Placement(Vector(0, 0, -1), App.Rotation())
sketch7.addGeometry(Part.Circle(Vector(0, 0, 0), Vector(0, 0, 1), 2.8), False)
sketch7.addGeometry(Part.Circle(Vector(0, 0, 0), Vector(0, 0, 1), 1.8), False)
sketch7.addConstraint(Sketcher.Constraint("Coincident", 0, 3, -1, 1))
sketch7.addConstraint(Sketcher.Constraint("Coincident", 1, 3, -1, 1))
sketch7.addConstraint(Sketcher.Constraint("Diameter", 0, Q("5.5 mm")))
sketch7.addConstraint(Sketcher.Constraint("Diameter", 1, Q("3.5 mm")))
pad4 = body.newObject("PartDesign::Pad", "Pad003")
pad4.Profile = sketch7
pad4.Length = 1
pad4.Reversed = True

# Sketch on XZ plane
sketch8 = body.newObject("Sketcher::SketchObject", "Sketch007")
sketch8.AttachmentSupport = (doc.getObject("XZ_Plane"), [""])
sketch8.MapMode = "FlatFace"
sketch8.addGeometry(Part.Circle(Vector(0, 0, 0), Vector(0, 0, 1), 2), False)
sketch8.addConstraint(Sketcher.Constraint("Coincident", 0, 3, -1, 1))
sketch8.addConstraint(Sketcher.Constraint("Diameter", 0, Q("4 mm")))
pocket3 = body.newObject("PartDesign::Pocket", "Pocket002")
pocket3.Profile = sketch8
pocket3.Length = 1

doc.recompute()
